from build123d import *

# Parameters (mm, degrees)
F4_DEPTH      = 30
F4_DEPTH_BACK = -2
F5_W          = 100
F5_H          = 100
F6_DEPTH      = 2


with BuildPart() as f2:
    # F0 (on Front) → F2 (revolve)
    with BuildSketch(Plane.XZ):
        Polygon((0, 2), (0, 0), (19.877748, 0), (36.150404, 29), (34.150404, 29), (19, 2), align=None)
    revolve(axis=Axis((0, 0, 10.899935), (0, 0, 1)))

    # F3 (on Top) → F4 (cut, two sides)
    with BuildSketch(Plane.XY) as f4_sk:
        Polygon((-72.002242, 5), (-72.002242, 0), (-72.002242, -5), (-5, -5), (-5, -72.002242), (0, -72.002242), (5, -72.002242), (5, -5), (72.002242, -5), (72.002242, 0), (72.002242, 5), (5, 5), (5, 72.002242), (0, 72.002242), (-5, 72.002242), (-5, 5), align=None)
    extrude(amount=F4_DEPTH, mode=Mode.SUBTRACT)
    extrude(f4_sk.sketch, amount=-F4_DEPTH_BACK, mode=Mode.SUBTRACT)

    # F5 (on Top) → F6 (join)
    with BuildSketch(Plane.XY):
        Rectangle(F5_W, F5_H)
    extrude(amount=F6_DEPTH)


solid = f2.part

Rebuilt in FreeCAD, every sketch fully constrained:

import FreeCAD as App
import Part
import Sketcher
from FreeCAD import Vector
Q = App.Units.Quantity

doc = App.newDocument("Part")
body = doc.addObject("PartDesign::Body", "Body")
body.AllowCompound = True

# Sketch on XZ plane
sketch1 = body.newObject("Sketcher::SketchObject", "Sketch")
sketch1.AttachmentSupport = (doc.getObject("XZ_Plane"), [""])
sketch1.MapMode = "FlatFace"
sketch1.addGeometry([
    Part.LineSegment(Vector(0, 2, 0), Vector(0, 0, 0)),  # 0
    Part.LineSegment(Vector(0, 0, 0), Vector(19.9, 0, 0)),  # 1
    Part.LineSegment(Vector(19.9, 0, 0), Vector(36.2, 29, 0)),  # 2
    Part.LineSegment(Vector(36.2, 29, 0), Vector(34.2, 29, 0)),  # 3
    Part.LineSegment(Vector(34.2, 29, 0), Vector(19, 2, 0)),  # 4
    Part.LineSegment(Vector(19, 2, 0), Vector(0, 2, 0)),  # 5
], False)
sketch1.addConstraint([
    Sketcher.Constraint("Coincident", 0, 2, 1, 1),
    Sketcher.Constraint("Coincident", 1, 2, 2, 1),
    Sketcher.Constraint("Coincident", 2, 2, 3, 1),
    Sketcher.Constraint("Coincident", 3, 2, 4, 1),
    Sketcher.Constraint("Coincident", 4, 2, 5, 1),
    Sketcher.Constraint("Coincident", 5, 2, 0, 1),
    Sketcher.Constraint("Vertical", 0),
    Sketcher.Constraint("Horizontal", 1),
    Sketcher.Constraint("Horizontal", 3),
    Sketcher.Constraint("Horizontal", 5),
    Sketcher.Constraint("Coincident", 0, 2, -1, 1),
    Sketcher.Constraint("Parallel", 2, 4),
    Sketcher.Constraint("Equal", 3, 0),
    Sketcher.Constraint("DistanceX", 3, 2, 3, 1, Q("2 mm")),
    Sketcher.Constraint("DistanceX", 5, 2, 5, 1, Q("19 mm")),
    Sketcher.Constraint("DistanceY", -1, 1, 2, 2, Q("29 mm")),
    Sketcher.Constraint("DistanceX", 1, 1, 1, 2, Q("19.877748 mm")),
])
revolution = body.newObject("PartDesign::Revolution", "Revolution")
revolution.Profile = sketch1
revolution.ReferenceAxis = (sketch1, ["V_Axis"])
revolution.Angle = 360

# Sketch on XY plane
sketch2 = body.newObject("Sketcher::SketchObject", "Sketch001")
sketch2.AttachmentSupport = (doc.getObject("XY_Plane"), [""])
sketch2.MapMode = "FlatFace"
sketch2.addGeometry([
    Part.LineSegment(Vector(-72, 5, 0), Vector(-72, -5, 0)),  # 0
    Part.LineSegment(Vector(-72, -5, 0), Vector(-5, -5, 0)),  # 1
    Part.LineSegment(Vector(-5, -5, 0), Vector(-5, -72, 0)),  # 2
    Part.LineSegment(Vector(-5, -72, 0), Vector(5, -72, 0)),  # 3
    Part.LineSegment(Vector(5, -72, 0), Vector(5, -5, 0)),  # 4
    Part.LineSegment(Vector(5, -5, 0), Vector(72, -5, 0)),  # 5
    Part.LineSegment(Vector(72, -5, 0), Vector(72, 5, 0)),  # 6
    Part.LineSegment(Vector(72, 5, 0), Vector(5, 5, 0)),  # 7
    Part.LineSegment(Vector(5, 5, 0), Vector(5, 72, 0)),  # 8
    Part.LineSegment(Vector(5, 72, 0), Vector(-5, 72, 0)),  # 9
    Part.LineSegment(Vector(-5, 72, 0), Vector(-5, 5, 0)),  # 10
    Part.LineSegment(Vector(-5, 5, 0), Vector(-72, 5, 0)),  # 11
], False)
sketch2.addConstraint([
    Sketcher.Constraint("Coincident", 0, 2, 1, 1),
    Sketcher.Constraint("Coincident", 1, 2, 2, 1),
    Sketcher.Constraint("Coincident", 2, 2, 3, 1),
    Sketcher.Constraint("Coincident", 3, 2, 4, 1),
    Sketcher.Constraint("Coincident", 4, 2, 5, 1),
    Sketcher.Constraint("Coincident", 5, 2, 6, 1),
    Sketcher.Constraint("Coincident", 6, 2, 7, 1),
    Sketcher.Constraint("Coincident", 7, 2, 8, 1),
    Sketcher.Constraint("Coincident", 8, 2, 9, 1),
    Sketcher.Constraint("Coincident", 9, 2, 10, 1),
    Sketcher.Constraint("Coincident", 10, 2, 11, 1),
    Sketcher.Constraint("Coincident", 11, 2, 0, 1),
    Sketcher.Constraint("Vertical", 0),
    Sketcher.Constraint("Horizontal", 1),
    Sketcher.Constraint("Vertical", 2),
    Sketcher.Constraint("Horizontal", 3),
    Sketcher.Constraint("Vertical", 4),
    Sketcher.Constraint("Horizontal", 5),
    Sketcher.Constraint("Vertical", 6),
    Sketcher.Constraint("Horizontal", 7),
    Sketcher.Constraint("Vertical", 8),
    Sketcher.Constraint("Horizontal", 9),
    Sketcher.Constraint("Vertical", 10),
    Sketcher.Constraint("Horizontal", 11),
    Sketcher.Constraint("Symmetric", 0, 2, 6, 2, -1, 1),
    Sketcher.Constraint("Symmetric", 2, 2, 8, 2, -1, 1),
    Sketcher.Constraint("Symmetric", 4, 2, 10, 2, -1, 1),
    Sketcher.Constraint("Symmetric", 1, 2, 4, 2, -2),
    Sketcher.Constraint("Equal", 9, 0),
    Sketcher.Constraint("Equal", 11, 2),
    Sketcher.Constraint("DistanceX", 3, 1, 3, 2, Q("10 mm")),
    Sketcher.Constraint("DistanceX", 1, 1, 1, 2, Q("67.002242 mm")),
])
pocket1 = body.newObject("PartDesign::Pocket", "Pocket")
pocket1.Profile = sketch2
pocket1.Length = 30
pocket1.Reversed = True
pocket2 = body.newObject("PartDesign::Pocket", "Pocket001")
pocket2.Profile = sketch2
pocket2.Length = 2
pocket2.Reversed = True

# Sketch on XY plane
sketch3 = body.newObject("Sketcher::SketchObject", "Sketch002")
sketch3.AttachmentSupport = (doc.getObject("XY_Plane"), [""])
sketch3.MapMode = "FlatFace"
sketch3.addGeometry([
    Part.LineSegment(Vector(-50, 50, 0), Vector(-50, -50, 0)),
    Part.LineSegment(Vector(-50, -50, 0), Vector(50, -50, 0)),
    Part.LineSegment(Vector(50, -50, 0), Vector(50, 50, 0)),
    Part.LineSegment(Vector(50, 50, 0), Vector(-50, 50, 0)),
], False)
sketch3.addConstraint([
    Sketcher.Constraint("Coincident", 0, 2, 1, 1),
    Sketcher.Constraint("Coincident", 1, 2, 2, 1),
    Sketcher.Constraint("Coincident", 2, 2, 3, 1),
    Sketcher.Constraint("Coincident", 3, 2, 0, 1),
    Sketcher.Constraint("Vertical", 0),
    Sketcher.Constraint("Horizontal", 1),
    Sketcher.Constraint("Vertical", 2),
    Sketcher.Constraint("Horizontal", 3),
    Sketcher.Constraint("Symmetric", 0, 2, 2, 2, -1, 1),
    Sketcher.Constraint("Equal", 3, 0),
    Sketcher.Constraint("DistanceX", 1, 1, 1, 2, Q("100 mm")),
])
pad1 = body.newObject("PartDesign::Pad", "Pad")
pad1.Profile = sketch3
pad1.Length = 2

doc.recompute()
